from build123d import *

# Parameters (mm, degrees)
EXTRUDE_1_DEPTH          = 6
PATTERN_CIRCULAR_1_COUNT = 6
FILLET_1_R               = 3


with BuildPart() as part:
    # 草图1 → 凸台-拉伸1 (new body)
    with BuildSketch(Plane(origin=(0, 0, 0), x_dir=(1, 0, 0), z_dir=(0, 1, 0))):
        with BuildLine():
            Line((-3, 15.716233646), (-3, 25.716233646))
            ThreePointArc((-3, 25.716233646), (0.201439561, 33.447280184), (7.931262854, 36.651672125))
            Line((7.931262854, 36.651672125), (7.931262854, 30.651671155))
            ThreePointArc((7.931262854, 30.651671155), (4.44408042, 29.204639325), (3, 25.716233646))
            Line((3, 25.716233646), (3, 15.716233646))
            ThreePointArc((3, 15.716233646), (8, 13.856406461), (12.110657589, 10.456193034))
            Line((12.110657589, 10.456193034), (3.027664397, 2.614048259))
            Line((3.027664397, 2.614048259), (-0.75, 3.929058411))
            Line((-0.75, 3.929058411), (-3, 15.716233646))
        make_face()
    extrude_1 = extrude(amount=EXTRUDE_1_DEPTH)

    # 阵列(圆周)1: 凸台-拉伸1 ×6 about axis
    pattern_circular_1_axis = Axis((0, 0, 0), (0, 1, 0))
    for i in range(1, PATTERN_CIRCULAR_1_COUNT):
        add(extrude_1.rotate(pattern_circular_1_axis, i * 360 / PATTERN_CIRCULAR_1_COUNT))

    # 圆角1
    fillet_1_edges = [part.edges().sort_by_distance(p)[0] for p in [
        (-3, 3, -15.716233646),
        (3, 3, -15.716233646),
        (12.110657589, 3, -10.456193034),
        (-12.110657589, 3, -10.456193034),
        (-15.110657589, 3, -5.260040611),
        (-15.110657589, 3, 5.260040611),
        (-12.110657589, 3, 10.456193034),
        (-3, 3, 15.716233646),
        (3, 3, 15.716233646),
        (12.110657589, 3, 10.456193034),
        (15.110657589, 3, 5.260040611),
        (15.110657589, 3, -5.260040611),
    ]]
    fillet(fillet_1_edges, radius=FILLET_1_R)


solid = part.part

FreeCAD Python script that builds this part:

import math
import FreeCAD as App
import Part
import Sketcher
Q = App.Units.Quantity


def edges_at(feature, points):
    """Names of the edges that pass closest to the given points."""
    edges = feature.Shape.Edges
    near = lambda p: min(range(len(edges)), key=lambda i: edges[i].distToShape(Part.Vertex(*p))[0])
    return sorted({f"Edge{near(p) + 1}" for p in points})

doc = App.newDocument("Part")
body = doc.addObject("PartDesign::Body", "Body")

sketch1 = body.newObject("Sketcher::SketchObject", "Sketch")
sketch1.AttachmentSupport = (doc.getObject("XZ_Plane"), [""])
sketch1.MapMode = "FlatFace"
sketch1.addGeometry([
    Part.LineSegment(App.Vector(-3, -25.716234, 0), App.Vector(-3, -15.716234, 0)),
    Part.LineSegment(App.Vector(-3, -15.716234, 0), App.Vector(-0.75, -3.929058, 0)),
    Part.LineSegment(App.Vector(-0.75, -3.929058, 0), App.Vector(3.027664, -2.614048, 0)),
    Part.LineSegment(App.Vector(3.027664, -2.614048, 0), App.Vector(12.110658, -10.456193, 0)),
    Part.ArcOfCircle(Part.Circle(App.Vector(0, 0, 0), App.Vector(0, 0, 1), 16), math.radians(-79.193077), math.radians(-40.806923)),
    Part.LineSegment(App.Vector(3, -15.716234, 0), App.Vector(3, -25.716234, 0)),
    Part.ArcOfCircle(Part.Circle(App.Vector(7.935439, -25.716234, 0), App.Vector(0, 0, 1), 4.935439), math.radians(-180), math.radians(-90.048484)),
    Part.LineSegment(App.Vector(7.931263, -30.651671, 0), App.Vector(7.931263, -36.651672, 0)),
    Part.ArcOfCircle(Part.Circle(App.Vector(7.935439, -25.716234, 0), App.Vector(0, 0, 1), 10.935439), math.radians(180), math.radians(269.978118)),
], False)
sketch1.addConstraint([
    Sketcher.Constraint("Coincident", 0, 2, 1, 1),
    Sketcher.Constraint("Coincident", 1, 2, 2, 1),
    Sketcher.Constraint("Coincident", 2, 2, 3, 1),
    Sketcher.Constraint("Coincident", 3, 2, 4, 2),
    Sketcher.Constraint("Coincident", 4, 1, 5, 1),
    Sketcher.Constraint("Tangent", 5, 2, 6, 1),
    Sketcher.Constraint("Coincident", 6, 2, 7, 1),
    Sketcher.Constraint("Coincident", 7, 2, 8, 2),
    Sketcher.Constraint("Tangent", 8, 1, 0, 1),
    Sketcher.Constraint("Vertical", 0),
    Sketcher.Constraint("Vertical", 5),
    Sketcher.Constraint("Vertical", 7),
    Sketcher.Constraint("Coincident", 4, 3, -1, 1),
    Sketcher.Constraint("Coincident", 8, 3, 6, 3),
    Sketcher.Constraint("Symmetric", 0, 2, 4, 1, -2),
    Sketcher.Constraint("Equal", 1, 3),
    Sketcher.Constraint("Radius", 4, Q("16 mm")),
    Sketcher.Constraint("DistanceY", 0, 1, 0, 2, Q("10 mm")),
    Sketcher.Constraint("DistanceY", 7, 2, 7, 1, Q("6.000001 mm")),
    Sketcher.Constraint("Distance", 1, Q("12 mm")),
    Sketcher.Constraint("Distance", 2, Q("4 mm")),
    Sketcher.Constraint("DistanceX", 1, 2, -1, 1, Q("0.75 mm")),
    Sketcher.Constraint("Radius", 6, Q("4.935439 mm")),
    Sketcher.Constraint("DistanceX", 6, 3, 3, 2, Q("4.175218 mm")),
    Sketcher.Constraint("DistanceX", -1, 1, 6, 2, Q("7.931263 mm")),
])
pad1 = body.newObject("PartDesign::Pad", "Pad")
pad1.Profile = sketch1
pad1.Length = 6
pad1.Reversed = True
doc.recompute()

polarpattern = body.newObject("PartDesign::PolarPattern", "PolarPattern")
polarpattern.Originals = [pad1]
polarpattern.Axis = (doc.getObject("Y_Axis"), [""])
polarpattern.Angle = 360
polarpattern.Occurrences = 6
body.Tip = polarpattern
doc.recompute()

fillet = body.newObject("PartDesign::Fillet", "Fillet")
fillet.Base = (polarpattern, edges_at(polarpattern, [
    (-3, 3, -15.716),
    (3, 3, -15.716),
    (12.111, 3, -10.456),
    (-12.111, 3, -10.456),
    (-15.111, 3, -5.26),
    (-15.111, 3, 5.26),
    (-12.111, 3, 10.456),
    (-3, 3, 15.716),
    (3, 3, 15.716),
    (12.111, 3, 10.456),
    (15.111, 3, 5.26),
    (15.111, 3, -5.26),
]))
fillet.Radius = 3

doc.recompute()
